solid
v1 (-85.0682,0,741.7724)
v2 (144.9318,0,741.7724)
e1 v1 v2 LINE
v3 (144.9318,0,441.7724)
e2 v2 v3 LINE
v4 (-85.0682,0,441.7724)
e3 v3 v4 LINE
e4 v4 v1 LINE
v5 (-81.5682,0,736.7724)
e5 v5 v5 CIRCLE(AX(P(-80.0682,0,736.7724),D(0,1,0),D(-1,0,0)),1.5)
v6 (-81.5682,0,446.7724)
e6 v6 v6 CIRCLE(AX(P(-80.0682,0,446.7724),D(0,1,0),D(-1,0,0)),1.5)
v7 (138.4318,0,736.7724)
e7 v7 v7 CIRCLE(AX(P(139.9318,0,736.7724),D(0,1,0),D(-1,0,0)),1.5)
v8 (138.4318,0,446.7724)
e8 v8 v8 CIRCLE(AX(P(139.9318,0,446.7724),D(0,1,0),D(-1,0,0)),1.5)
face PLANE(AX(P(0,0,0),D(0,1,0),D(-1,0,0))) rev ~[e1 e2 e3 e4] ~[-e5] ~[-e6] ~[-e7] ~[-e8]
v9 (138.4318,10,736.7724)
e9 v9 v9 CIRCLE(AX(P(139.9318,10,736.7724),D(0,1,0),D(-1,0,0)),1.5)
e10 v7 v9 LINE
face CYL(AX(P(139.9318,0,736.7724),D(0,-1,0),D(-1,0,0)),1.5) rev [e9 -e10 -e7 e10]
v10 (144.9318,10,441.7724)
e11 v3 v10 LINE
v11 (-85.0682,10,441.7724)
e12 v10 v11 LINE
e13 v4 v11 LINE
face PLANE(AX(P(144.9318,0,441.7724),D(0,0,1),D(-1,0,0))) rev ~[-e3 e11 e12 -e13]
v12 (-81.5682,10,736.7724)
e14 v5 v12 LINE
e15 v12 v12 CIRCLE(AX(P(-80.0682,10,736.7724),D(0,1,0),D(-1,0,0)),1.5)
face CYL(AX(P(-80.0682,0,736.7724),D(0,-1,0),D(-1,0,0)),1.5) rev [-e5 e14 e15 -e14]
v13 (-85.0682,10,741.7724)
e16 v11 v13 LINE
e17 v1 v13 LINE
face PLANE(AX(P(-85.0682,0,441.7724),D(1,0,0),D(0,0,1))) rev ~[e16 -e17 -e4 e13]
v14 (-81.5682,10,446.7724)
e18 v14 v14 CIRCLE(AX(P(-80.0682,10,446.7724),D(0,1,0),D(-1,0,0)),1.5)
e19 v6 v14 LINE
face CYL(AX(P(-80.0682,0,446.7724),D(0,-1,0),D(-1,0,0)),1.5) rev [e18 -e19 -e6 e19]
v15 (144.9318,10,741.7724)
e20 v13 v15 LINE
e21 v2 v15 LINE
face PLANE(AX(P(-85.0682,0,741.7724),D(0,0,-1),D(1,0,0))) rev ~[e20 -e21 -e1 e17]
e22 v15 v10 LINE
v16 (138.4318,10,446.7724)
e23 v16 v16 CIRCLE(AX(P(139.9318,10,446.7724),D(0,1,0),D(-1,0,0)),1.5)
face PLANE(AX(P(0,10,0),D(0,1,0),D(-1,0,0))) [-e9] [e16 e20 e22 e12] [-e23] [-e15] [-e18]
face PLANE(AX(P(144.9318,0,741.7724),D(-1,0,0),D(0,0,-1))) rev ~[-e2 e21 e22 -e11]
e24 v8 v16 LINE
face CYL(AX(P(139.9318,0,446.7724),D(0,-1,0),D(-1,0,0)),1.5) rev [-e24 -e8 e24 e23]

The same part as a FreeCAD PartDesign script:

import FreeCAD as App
import Part
import Sketcher

V = App.Vector

doc = App.newDocument("Part")
body = doc.addObject("PartDesign::Body", "Body")

sketch1 = body.newObject("Sketcher::SketchObject", "Sketch")
sketch1.AttachmentSupport = (doc.getObject("XZ_Plane"), [""])
sketch1.MapMode = "FlatFace"
sketch1.addGeometry([
    Part.LineSegment(V(-85.0682, 441.7724, 0), V(-85.0682, 741.7724, 0)),
    Part.LineSegment(V(-85.0682, 741.7724, 0), V(144.9318, 741.7724, 0)),
    Part.LineSegment(V(144.9318, 741.7724, 0), V(144.9318, 441.7724, 0)),
    Part.LineSegment(V(144.9318, 441.7724, 0), V(-85.0682, 441.7724, 0)),
    Part.Circle(V(139.9318, 446.7724, 0), V(0, 0, 1), 1.5),
    Part.Circle(V(139.9318, 736.7724, 0), V(0, 0, 1), 1.5),
    Part.Circle(V(-80.0682, 446.7724, 0), V(0, 0, 1), 1.5),
    Part.Circle(V(-80.0682, 736.7724, 0), V(0, 0, 1), 1.5),
], False)
sketch1.addConstraint([
    Sketcher.Constraint("Coincident", 0, 2, 1, 1),
    Sketcher.Constraint("Coincident", 1, 2, 2, 1),
    Sketcher.Constraint("Coincident", 2, 2, 3, 1),
    Sketcher.Constraint("Coincident", 3, 2, 0, 1),
    Sketcher.Constraint("Vertical", 0),
    Sketcher.Constraint("Horizontal", 1),
    Sketcher.Constraint("Vertical", 2),
    Sketcher.Constraint("Horizontal", 3),
    Sketcher.Constraint("Equal", 4, 5),
    Sketcher.Constraint("Equal", 5, 6),
    Sketcher.Constraint("Equal", 6, 7),
    Sketcher.Constraint("Horizontal", 4, 3, 6, 3),
    Sketcher.Constraint("Horizontal", 5, 3, 7, 3),
    Sketcher.Constraint("Vertical", 4, 3, 5, 3),
    Sketcher.Constraint("Vertical", 6, 3, 7, 3),
    Sketcher.Constraint("Diameter", 4, 3.0),
    Sketcher.Constraint("DistanceX", 1, 1, 1, 2, 230.0),
    Sketcher.Constraint("DistanceY", 0, 1, 0, 2, 300.0),
    Sketcher.Constraint("DistanceY", 4, 3, 5, 3, 290.0),
    Sketcher.Constraint("DistanceX", 6, 3, 4, 3, 220.0),
    Sketcher.Constraint("DistanceX", 0, 2, 7, 3, 5.0),
    Sketcher.Constraint("DistanceY", 7, 3, 0, 2, 5.0),
    Sketcher.Constraint("DistanceX", -1, 1, 4, 3, 139.9318),
    Sketcher.Constraint("DistanceY", -1, 1, 4, 3, 446.7724),
])
pad1 = body.newObject("PartDesign::Pad", "Pad")
pad1.Profile = sketch1
pad1.Length = 10
pad1.Reversed = True

doc.recompute()
